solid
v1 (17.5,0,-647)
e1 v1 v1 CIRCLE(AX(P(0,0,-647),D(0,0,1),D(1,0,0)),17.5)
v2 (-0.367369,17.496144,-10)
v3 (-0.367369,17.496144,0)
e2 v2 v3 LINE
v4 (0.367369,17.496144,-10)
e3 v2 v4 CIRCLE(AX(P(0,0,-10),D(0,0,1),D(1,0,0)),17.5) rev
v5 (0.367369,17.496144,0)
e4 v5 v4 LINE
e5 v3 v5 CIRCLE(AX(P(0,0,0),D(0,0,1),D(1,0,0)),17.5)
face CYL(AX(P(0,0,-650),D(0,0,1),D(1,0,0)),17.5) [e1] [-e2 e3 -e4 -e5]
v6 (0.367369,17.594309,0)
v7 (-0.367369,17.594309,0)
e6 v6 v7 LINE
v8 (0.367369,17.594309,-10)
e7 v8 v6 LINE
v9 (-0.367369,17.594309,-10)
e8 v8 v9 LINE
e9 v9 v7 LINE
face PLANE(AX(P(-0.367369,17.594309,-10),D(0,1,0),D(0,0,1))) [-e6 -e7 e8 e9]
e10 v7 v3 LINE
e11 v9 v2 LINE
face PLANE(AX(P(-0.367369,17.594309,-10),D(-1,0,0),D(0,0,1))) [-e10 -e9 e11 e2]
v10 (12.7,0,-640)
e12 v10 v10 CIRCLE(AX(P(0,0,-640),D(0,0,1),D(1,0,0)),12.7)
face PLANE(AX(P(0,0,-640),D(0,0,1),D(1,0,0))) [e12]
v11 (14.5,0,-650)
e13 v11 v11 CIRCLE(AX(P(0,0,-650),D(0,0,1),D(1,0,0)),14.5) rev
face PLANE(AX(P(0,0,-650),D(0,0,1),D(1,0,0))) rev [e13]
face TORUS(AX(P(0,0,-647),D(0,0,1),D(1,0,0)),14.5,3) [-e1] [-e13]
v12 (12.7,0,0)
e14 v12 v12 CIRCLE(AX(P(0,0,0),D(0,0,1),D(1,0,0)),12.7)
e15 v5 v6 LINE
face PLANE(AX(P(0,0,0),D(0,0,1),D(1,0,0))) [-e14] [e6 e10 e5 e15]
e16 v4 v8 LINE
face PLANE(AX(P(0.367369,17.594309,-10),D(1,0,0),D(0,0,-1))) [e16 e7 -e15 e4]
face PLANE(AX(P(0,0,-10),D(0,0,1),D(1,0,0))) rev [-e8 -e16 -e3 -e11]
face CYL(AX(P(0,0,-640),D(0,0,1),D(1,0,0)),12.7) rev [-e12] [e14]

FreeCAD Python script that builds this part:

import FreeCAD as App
import Part
import Sketcher
from FreeCAD import Vector


def edges_at(feature, points):
    """Names of the edges that pass closest to the given points."""
    edges = feature.Shape.Edges
    near = lambda p: min(range(len(edges)), key=lambda i: edges[i].distToShape(Part.Vertex(*p))[0])
    return sorted({f"Edge{near(p) + 1}" for p in points})


def add_polygon(sketch, points):
    """Adds a closed chain of lines whose ends are joined by coincident constraints."""
    first, n = sketch.GeometryCount, len(points)
    for a, b in zip(points, points[1:] + points[:1]):
        sketch.addGeometry(Part.LineSegment(App.Vector(*a, 0), App.Vector(*b, 0)), False)
    for i in range(n):
        sketch.addConstraint(Sketcher.Constraint("Coincident", first + i, 2, first + (i + 1) % n, 1))

doc = App.newDocument("Part")
body = doc.addObject("PartDesign::Body", "Body")

# Sketch on XY plane
sketch1 = body.newObject("Sketcher::SketchObject", "Sketch")
sketch1.AttachmentSupport = (doc.getObject("XY_Plane"), [""])
sketch1.MapMode = "FlatFace"
sketch1.addGeometry(Part.Circle(Vector(0, 0, 0), Vector(0, 0, 1), 18), False)
sketch1.addConstraint(Sketcher.Constraint("Coincident", 0, 3, -1, 1))
sketch1.addConstraint(Sketcher.Constraint("Diameter", 0, 35.0))
pad1 = body.newObject("PartDesign::Pad", "Pad")
pad1.Profile = sketch1
pad1.Length = 650
pad1.Reversed = True

# Sketch on XY plane
sketch2 = body.newObject("Sketcher::SketchObject", "Sketch001")
sketch2.AttachmentSupport = (doc.getObject("XY_Plane"), [""])
sketch2.MapMode = "FlatFace"
sketch2.addGeometry(Part.Circle(Vector(0, 0, 0), Vector(0, 0, 1), 13), False)
sketch2.addConstraint(Sketcher.Constraint("Coincident", 0, 3, -1, 1))
sketch2.addConstraint(Sketcher.Constraint("Diameter", 0, 25.4))
pocket1 = body.newObject("PartDesign::Pocket", "Pocket")
pocket1.Profile = sketch2
pocket1.Length = 640
doc.recompute()

fillet = body.newObject("PartDesign::Fillet", "Fillet")
fillet.Base = (pocket1, edges_at(pocket1, [(-17.5, 0, -650)]))
fillet.Radius = 3

# Sketch on XY plane
sketch3 = body.newObject("Sketcher::SketchObject", "Sketch002")
sketch3.AttachmentSupport = (doc.getObject("XY_Plane"), [""])
sketch3.MapMode = "FlatFace"
add_polygon(sketch3, [(-0.37, 17.59), (-0.37, 17.41), (0.37, 17.41), (0.37, 17.59)])  # lines 0-3
sketch3.addConstraint(Sketcher.Constraint("Vertical", 0))
sketch3.addConstraint(Sketcher.Constraint("Horizontal", 1))
sketch3.addConstraint(Sketcher.Constraint("Vertical", 2))
sketch3.addConstraint(Sketcher.Constraint("Horizontal", 3))
sketch3.addConstraint(Sketcher.Constraint("DistanceY", 0, 2, 0, 1, 0.188618))
sketch3.addConstraint(Sketcher.Constraint("DistanceX", 1, 1, 1, 2, 0.734738))
sketch3.addConstraint(Sketcher.Constraint("DistanceX", 0, 2, -1, 1, 0.367369))
sketch3.addConstraint(Sketcher.Constraint("DistanceY", -1, 1, 0, 2, 17.405691))
pad2 = body.newObject("PartDesign::Pad", "Pad001")
pad2.Profile = sketch3
pad2.Length = 10
pad2.Reversed = True

doc.recompute()
